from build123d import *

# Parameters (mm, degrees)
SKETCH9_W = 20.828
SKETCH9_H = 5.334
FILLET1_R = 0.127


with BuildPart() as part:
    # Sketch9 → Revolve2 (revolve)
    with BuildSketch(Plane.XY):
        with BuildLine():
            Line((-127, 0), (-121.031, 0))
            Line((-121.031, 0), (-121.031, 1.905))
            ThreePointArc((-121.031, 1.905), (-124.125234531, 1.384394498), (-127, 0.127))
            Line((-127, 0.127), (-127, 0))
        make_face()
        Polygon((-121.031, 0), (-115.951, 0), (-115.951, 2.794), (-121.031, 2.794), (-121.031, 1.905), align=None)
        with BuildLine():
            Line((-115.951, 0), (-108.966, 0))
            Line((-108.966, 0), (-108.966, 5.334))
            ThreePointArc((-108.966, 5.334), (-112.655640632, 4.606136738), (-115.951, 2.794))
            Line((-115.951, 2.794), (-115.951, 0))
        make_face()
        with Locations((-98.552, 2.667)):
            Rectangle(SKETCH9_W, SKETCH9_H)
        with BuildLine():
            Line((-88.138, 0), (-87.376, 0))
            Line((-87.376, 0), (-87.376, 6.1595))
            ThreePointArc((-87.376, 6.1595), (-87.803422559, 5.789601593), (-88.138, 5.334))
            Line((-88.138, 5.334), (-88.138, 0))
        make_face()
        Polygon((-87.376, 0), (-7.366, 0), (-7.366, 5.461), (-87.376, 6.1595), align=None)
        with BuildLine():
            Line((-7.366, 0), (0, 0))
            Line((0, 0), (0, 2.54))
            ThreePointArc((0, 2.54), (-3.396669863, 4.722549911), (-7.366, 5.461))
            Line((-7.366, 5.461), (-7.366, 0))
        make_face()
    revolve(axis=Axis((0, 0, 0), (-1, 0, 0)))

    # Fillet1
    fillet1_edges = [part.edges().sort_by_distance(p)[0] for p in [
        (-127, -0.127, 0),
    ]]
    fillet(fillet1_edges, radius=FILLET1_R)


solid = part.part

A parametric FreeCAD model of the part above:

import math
import FreeCAD as App
import Part
import Sketcher
from FreeCAD import Vector
Q = App.Units.Quantity


def edges_at(feature, points):
    """Names of the edges that pass closest to the given points."""
    edges = feature.Shape.Edges
    near = lambda p: min(range(len(edges)), key=lambda i: edges[i].distToShape(Part.Vertex(*p))[0])
    return sorted({f"Edge{near(p) + 1}" for p in points})

doc = App.newDocument("Part")
body = doc.addObject("PartDesign::Body", "Body")

# Sketch on XY plane
sketch1 = doc.addObject("Sketcher::SketchObject", "Sketch")
body.addObject(sketch1)
sketch1.AttachmentSupport = (doc.XY_Plane, [""])
sketch1.MapMode = "FlatFace"
sketch1.addGeometry(Part.LineSegment(Vector(-127, 0, 0), Vector(0, 0, 0)), False)
sketch1.addGeometry(Part.LineSegment(Vector(0, 0, 0), Vector(0, 2.54, 0)), False)
sketch1.addGeometry(Part.ArcOfCircle(Part.Circle(Vector(-7.264662, -5.031516, 0), Vector(0, 0, 1), 10.493006), math.radians(46.184872), math.radians(90.553355)), False)
sketch1.addGeometry(Part.LineSegment(Vector(-7.366, 5.461, 0), Vector(-87.376, 6.1595, 0)), False)
sketch1.addGeometry(Part.ArcOfCircle(Part.Circle(Vector(-85.9453, 4.074411, 0), Vector(0, 0, 1), 2.528734), math.radians(124.456276), math.radians(150.124944)), False)
sketch1.addGeometry(Part.LineSegment(Vector(-88.138, 5.334, 0), Vector(-108.966, 5.334, 0)), False)
sketch1.addGeometry(Part.ArcOfCircle(Part.Circle(Vector(-108.466336, -6.914452, 0), Vector(0, 0, 1), 12.258639), math.radians(92.336033), math.radians(127.63018)), False)
sketch1.addGeometry(Part.LineSegment(Vector(-115.951, 2.794, 0), Vector(-121.031, 2.794, 0)), False)
sketch1.addGeometry(Part.LineSegment(Vector(-121.031, 2.794, 0), Vector(-121.031, 1.905, 0)), False)
sketch1.addGeometry(Part.ArcOfCircle(Part.Circle(Vector(-120.469308, -10.889072, 0), Vector(0, 0, 1), 12.806395), math.radians(92.513813), math.radians(120.660864)), False)
sketch1.addGeometry(Part.LineSegment(Vector(-127, 0.127, 0), Vector(-127, 0, 0)), False)
sketch1.addConstraint(Sketcher.Constraint("Coincident", 0, 2, 1, 1))
sketch1.addConstraint(Sketcher.Constraint("Coincident", 1, 2, 2, 1))
sketch1.addConstraint(Sketcher.Constraint("Coincident", 2, 2, 3, 1))
sketch1.addConstraint(Sketcher.Constraint("Coincident", 3, 2, 4, 1))
sketch1.addConstraint(Sketcher.Constraint("Coincident", 4, 2, 5, 1))
sketch1.addConstraint(Sketcher.Constraint("Coincident", 5, 2, 6, 1))
sketch1.addConstraint(Sketcher.Constraint("Coincident", 6, 2, 7, 1))
sketch1.addConstraint(Sketcher.Constraint("Coincident", 7, 2, 8, 1))
sketch1.addConstraint(Sketcher.Constraint("Coincident", 8, 2, 9, 1))
sketch1.addConstraint(Sketcher.Constraint("Coincident", 9, 2, 10, 1))
sketch1.addConstraint(Sketcher.Constraint("Coincident", 10, 2, 0, 1))
sketch1.addConstraint(Sketcher.Constraint("Horizontal", 0))
sketch1.addConstraint(Sketcher.Constraint("Vertical", 1))
sketch1.addConstraint(Sketcher.Constraint("Horizontal", 5))
sketch1.addConstraint(Sketcher.Constraint("Horizontal", 7))
sketch1.addConstraint(Sketcher.Constraint("Vertical", 8))
sketch1.addConstraint(Sketcher.Constraint("Vertical", 10))
sketch1.addConstraint(Sketcher.Constraint("Coincident", 0, 2, -1, 1))
sketch1.addConstraint(Sketcher.Constraint("DistanceX", 0, 1, 0, 2, Q("5 in")))
sketch1.addConstraint(Sketcher.Constraint("DistanceX", 7, 2, 7, 1, Q("0.2 in")))
sketch1.addConstraint(Sketcher.Constraint("DistanceY", 1, 1, 1, 2, Q("0.1 in")))
sketch1.addConstraint(Sketcher.Constraint("DistanceX", 5, 2, 5, 1, Q("0.82 in")))
sketch1.addConstraint(Sketcher.Constraint("DistanceY", 6, 2, 5, 2, Q("0.1 in")))
sketch1.addConstraint(Sketcher.Constraint("DistanceY", 8, 2, 8, 1, Q("0.035 in")))
sketch1.addConstraint(Sketcher.Constraint("DistanceY", 10, 2, 10, 1, Q("0.005 in")))
sketch1.addConstraint(Sketcher.Constraint("DistanceX", 2, 2, -1, 1, Q("0.29 in")))
sketch1.addConstraint(Sketcher.Constraint("DistanceX", 3, 2, -1, 1, Q("3.44 in")))
sketch1.addConstraint(Sketcher.Constraint("DistanceX", 4, 2, -1, 1, Q("3.47 in")))
sketch1.addConstraint(Sketcher.Constraint("DistanceY", -1, 1, 4, 2, Q("0.21 in")))
sketch1.addConstraint(Sketcher.Constraint("DistanceY", -1, 1, 2, 2, Q("0.215 in")))
sketch1.addConstraint(Sketcher.Constraint("DistanceX", 6, 2, -1, 1, Q("4.565 in")))
sketch1.addConstraint(Sketcher.Constraint("Radius", 6, Q("12.258639 mm")))
sketch1.addConstraint(Sketcher.Constraint("DistanceY", -1, 1, 3, 2, Q("0.2425 in")))
sketch1.addConstraint(Sketcher.Constraint("Radius", 2, Q("10.493006 mm")))
sketch1.addConstraint(Sketcher.Constraint("Radius", 4, Q("2.528734 mm")))
sketch1.addConstraint(Sketcher.Constraint("Radius", 9, Q("12.806395 mm")))
revolution = doc.addObject("PartDesign::Revolution", "Revolution")
body.addObject(revolution)
revolution.Profile = sketch1
revolution.ReferenceAxis = (sketch1, ["H_Axis"])
revolution.Angle = 360
doc.recompute()

fillet = doc.addObject("PartDesign::Fillet", "Fillet")
body.addObject(fillet)
fillet.Base = (revolution, edges_at(revolution, [(-127, -0.127, 0)]))
fillet.Radius = Q("0.005 in")

doc.recompute()
